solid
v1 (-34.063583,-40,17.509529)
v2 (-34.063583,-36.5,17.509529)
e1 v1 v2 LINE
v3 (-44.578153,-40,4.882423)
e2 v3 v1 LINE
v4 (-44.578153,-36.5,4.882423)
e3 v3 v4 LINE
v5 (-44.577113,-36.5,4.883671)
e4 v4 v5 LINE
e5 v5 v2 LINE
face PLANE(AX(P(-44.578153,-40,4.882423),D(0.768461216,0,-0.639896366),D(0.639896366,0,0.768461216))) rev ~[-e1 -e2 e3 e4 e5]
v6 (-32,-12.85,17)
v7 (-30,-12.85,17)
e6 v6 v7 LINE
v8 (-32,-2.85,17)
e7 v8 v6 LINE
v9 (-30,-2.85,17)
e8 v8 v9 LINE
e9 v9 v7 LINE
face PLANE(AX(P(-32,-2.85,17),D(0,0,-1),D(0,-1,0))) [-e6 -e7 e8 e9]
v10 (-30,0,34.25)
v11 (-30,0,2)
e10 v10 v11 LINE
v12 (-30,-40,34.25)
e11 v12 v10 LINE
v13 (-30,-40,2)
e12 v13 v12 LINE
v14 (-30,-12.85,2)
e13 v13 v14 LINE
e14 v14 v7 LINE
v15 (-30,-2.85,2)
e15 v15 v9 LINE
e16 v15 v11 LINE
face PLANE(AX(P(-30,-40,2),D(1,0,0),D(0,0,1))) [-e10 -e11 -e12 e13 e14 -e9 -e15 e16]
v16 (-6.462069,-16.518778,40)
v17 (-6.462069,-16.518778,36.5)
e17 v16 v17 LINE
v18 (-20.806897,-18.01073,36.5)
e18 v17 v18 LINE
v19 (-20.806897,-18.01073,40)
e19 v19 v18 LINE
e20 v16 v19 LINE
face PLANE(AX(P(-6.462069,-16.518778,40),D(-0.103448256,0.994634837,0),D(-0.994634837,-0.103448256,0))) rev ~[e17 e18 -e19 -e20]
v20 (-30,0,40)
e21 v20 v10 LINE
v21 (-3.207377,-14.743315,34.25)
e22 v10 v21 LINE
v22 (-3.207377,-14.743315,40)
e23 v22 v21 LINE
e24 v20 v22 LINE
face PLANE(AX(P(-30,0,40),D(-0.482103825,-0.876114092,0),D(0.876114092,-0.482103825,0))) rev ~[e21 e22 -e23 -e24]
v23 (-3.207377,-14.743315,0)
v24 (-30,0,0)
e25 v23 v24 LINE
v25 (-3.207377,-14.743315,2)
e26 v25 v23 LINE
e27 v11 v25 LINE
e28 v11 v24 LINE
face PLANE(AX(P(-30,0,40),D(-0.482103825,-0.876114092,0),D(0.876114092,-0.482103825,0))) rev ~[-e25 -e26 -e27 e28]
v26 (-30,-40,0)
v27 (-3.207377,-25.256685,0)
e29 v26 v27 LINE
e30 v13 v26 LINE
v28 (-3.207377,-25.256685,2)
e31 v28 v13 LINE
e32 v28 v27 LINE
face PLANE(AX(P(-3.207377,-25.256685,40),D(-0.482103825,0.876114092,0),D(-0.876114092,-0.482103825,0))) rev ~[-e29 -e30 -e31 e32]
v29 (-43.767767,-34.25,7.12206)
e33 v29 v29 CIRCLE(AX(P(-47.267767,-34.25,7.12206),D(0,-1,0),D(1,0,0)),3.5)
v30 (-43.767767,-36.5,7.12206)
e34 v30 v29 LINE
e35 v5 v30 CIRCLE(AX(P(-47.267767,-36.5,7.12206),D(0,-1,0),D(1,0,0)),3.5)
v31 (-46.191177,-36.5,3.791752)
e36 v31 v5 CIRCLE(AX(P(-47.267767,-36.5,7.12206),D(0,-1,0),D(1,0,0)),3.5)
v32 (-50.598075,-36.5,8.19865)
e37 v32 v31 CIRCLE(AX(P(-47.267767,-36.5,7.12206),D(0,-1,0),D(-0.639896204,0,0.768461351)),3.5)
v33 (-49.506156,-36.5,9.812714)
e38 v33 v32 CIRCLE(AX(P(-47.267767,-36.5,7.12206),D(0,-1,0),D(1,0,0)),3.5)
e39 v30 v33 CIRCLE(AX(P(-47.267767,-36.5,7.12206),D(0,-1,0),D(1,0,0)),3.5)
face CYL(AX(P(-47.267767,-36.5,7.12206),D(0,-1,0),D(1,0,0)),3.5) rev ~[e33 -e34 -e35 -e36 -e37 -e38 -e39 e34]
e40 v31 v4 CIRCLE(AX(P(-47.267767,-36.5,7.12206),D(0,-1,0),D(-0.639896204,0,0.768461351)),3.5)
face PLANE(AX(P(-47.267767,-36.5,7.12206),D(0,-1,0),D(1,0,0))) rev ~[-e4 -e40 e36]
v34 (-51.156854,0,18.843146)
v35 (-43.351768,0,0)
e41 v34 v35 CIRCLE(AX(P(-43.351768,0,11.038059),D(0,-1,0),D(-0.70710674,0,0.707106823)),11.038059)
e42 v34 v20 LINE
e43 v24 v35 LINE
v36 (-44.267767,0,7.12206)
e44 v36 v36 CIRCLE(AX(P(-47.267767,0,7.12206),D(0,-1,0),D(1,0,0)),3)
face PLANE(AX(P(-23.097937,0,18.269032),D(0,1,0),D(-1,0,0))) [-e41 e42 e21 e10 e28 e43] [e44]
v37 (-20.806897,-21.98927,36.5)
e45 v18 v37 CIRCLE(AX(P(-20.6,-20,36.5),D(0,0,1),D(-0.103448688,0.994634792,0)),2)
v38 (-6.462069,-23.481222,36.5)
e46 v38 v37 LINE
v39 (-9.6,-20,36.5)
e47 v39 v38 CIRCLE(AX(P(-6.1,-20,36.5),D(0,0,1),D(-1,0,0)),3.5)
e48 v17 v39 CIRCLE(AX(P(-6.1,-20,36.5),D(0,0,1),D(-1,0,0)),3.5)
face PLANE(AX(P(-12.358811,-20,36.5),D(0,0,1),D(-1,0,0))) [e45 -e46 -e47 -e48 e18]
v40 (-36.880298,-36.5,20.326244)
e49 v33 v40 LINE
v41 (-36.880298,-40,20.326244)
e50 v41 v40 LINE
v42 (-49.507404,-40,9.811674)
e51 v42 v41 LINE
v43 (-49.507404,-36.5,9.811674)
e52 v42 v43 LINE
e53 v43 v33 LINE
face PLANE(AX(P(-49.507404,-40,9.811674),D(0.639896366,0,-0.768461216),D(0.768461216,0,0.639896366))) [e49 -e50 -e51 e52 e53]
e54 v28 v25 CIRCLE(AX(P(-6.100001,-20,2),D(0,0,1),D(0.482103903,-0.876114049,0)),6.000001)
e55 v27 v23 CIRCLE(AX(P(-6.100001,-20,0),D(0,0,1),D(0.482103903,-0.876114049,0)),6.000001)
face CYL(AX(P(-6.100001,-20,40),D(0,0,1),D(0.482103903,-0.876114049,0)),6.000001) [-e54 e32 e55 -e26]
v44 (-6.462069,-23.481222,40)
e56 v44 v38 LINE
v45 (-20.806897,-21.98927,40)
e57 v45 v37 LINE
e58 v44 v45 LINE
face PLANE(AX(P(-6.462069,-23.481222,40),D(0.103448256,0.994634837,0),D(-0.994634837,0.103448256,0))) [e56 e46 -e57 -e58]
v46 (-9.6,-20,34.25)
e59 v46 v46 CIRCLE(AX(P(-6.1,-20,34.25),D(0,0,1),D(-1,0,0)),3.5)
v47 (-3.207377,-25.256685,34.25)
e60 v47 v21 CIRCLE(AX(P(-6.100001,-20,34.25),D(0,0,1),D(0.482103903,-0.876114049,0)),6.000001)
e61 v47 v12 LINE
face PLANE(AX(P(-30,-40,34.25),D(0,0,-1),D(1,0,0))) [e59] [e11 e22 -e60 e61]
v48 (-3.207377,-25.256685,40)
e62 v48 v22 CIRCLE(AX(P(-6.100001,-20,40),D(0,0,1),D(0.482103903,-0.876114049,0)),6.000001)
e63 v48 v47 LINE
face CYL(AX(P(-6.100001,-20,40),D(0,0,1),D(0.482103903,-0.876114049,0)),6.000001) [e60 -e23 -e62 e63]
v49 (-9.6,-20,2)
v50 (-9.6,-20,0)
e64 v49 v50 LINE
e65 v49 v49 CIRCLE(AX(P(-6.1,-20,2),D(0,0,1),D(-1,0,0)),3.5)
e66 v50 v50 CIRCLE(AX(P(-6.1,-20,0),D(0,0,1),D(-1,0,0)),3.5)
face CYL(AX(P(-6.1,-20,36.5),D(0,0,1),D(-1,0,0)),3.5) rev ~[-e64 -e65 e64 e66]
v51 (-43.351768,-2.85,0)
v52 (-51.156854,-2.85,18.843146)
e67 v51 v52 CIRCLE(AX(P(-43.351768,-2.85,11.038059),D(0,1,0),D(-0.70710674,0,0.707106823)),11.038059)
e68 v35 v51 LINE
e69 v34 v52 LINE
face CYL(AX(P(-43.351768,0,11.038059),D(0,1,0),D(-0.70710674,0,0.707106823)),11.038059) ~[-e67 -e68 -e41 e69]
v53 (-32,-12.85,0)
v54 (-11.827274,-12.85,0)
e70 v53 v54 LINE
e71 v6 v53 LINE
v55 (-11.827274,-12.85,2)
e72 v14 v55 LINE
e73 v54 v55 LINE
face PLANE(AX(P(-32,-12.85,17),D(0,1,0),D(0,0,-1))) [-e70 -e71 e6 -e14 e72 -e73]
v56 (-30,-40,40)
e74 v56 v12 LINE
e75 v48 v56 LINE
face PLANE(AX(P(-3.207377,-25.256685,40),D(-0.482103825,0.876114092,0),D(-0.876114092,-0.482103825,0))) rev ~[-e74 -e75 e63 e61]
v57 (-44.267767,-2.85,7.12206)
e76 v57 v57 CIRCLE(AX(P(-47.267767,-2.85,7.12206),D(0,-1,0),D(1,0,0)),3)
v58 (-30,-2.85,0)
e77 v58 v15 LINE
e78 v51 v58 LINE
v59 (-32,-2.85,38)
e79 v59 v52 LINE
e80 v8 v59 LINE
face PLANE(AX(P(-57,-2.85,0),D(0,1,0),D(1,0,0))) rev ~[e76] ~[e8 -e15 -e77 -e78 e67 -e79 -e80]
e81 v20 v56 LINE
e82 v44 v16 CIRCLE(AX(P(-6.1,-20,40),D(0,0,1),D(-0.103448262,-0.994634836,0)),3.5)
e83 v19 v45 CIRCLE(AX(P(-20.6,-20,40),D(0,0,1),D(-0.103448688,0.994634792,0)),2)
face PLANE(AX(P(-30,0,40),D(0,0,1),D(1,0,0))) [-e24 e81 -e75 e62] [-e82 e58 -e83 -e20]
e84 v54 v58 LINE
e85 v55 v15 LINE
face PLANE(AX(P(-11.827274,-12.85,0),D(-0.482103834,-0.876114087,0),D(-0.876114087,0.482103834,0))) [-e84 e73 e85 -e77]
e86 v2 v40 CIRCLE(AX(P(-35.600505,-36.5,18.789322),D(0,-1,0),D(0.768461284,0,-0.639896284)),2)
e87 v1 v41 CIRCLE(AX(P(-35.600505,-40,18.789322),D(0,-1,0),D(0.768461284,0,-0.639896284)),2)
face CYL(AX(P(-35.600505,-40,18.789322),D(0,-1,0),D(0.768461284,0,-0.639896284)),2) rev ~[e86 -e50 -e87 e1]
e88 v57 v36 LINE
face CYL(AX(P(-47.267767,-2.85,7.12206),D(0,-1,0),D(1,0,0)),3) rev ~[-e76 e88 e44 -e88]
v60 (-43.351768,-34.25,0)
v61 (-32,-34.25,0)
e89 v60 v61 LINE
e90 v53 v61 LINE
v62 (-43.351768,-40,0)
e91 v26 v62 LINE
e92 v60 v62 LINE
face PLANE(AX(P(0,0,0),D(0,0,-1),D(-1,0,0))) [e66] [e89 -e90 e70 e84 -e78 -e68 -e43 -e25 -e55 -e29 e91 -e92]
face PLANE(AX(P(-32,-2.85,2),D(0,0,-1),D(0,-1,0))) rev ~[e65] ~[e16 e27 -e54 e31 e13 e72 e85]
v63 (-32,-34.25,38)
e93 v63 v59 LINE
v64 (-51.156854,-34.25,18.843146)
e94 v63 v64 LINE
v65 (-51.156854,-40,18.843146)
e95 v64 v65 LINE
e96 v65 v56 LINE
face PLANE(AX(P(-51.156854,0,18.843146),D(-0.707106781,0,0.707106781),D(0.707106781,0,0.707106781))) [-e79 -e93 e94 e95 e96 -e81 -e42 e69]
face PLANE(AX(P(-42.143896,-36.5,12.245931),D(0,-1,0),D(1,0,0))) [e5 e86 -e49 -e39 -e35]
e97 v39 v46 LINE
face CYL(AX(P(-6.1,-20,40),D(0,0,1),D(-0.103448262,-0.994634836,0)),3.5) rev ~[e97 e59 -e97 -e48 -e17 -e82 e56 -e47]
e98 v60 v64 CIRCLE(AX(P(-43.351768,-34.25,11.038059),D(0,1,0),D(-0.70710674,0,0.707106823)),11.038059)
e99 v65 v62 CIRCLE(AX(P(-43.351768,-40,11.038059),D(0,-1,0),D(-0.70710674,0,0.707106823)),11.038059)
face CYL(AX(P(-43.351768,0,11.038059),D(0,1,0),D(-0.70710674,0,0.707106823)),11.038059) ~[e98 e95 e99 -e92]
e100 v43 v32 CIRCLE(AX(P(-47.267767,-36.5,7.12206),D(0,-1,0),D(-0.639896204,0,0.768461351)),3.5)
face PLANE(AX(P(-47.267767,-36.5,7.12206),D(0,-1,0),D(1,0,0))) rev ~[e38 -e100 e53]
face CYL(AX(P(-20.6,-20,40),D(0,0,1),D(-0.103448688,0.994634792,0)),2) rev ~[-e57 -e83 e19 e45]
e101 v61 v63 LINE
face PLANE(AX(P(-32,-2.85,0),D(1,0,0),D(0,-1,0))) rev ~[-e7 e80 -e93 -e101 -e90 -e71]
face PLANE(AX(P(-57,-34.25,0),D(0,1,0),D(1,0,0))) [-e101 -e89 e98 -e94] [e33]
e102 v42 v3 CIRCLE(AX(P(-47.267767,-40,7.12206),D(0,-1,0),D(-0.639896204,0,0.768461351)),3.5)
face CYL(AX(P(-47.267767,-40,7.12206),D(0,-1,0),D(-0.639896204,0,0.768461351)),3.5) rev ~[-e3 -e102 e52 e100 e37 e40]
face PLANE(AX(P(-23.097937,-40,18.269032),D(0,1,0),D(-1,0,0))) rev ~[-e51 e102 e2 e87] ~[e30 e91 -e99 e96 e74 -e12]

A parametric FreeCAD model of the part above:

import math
import FreeCAD as App
import Part
import Sketcher

V = App.Vector
Q = App.Units.Quantity


def add_polygon(sketch, points):
    """Adds a closed chain of lines whose ends are joined by coincident constraints."""
    first, n = sketch.GeometryCount, len(points)
    for a, b in zip(points, points[1:] + points[:1]):
        sketch.addGeometry(Part.LineSegment(App.Vector(*a, 0), App.Vector(*b, 0)), False)
    for i in range(n):
        sketch.addConstraint(Sketcher.Constraint("Coincident", first + i, 2, first + (i + 1) % n, 1))

doc = App.newDocument("Part")
body = doc.addObject("PartDesign::Body", "Body")

sketch1 = body.newObject("Sketcher::SketchObject", "Sketch")
sketch1.AttachmentSupport = (doc.getObject("XZ_Plane"), [""])
sketch1.MapMode = "FlatFace"
sketch1.addGeometry([
    Part.LineSegment(V(-30, 40, 0), V(-51, 19, 0)),
    Part.ArcOfCircle(Part.Circle(V(-43, 11, 0), V(0, 0, 1), 11), math.radians(135), math.radians(270)),
    Part.LineSegment(V(-43, 0, 0), V(0, 0, 0)),
    Part.LineSegment(V(0, 0, 0), V(0, 40, 0)),
    Part.LineSegment(V(0, 40, 0), V(-30, 40, 0)),
], False)
sketch1.addConstraint([
    Sketcher.Constraint("Tangent", 0, 2, 1, 1),
    Sketcher.Constraint("Tangent", 1, 2, 2, 1),
    Sketcher.Constraint("Coincident", 2, 2, 3, 1),
    Sketcher.Constraint("Coincident", 3, 2, 4, 1),
    Sketcher.Constraint("Coincident", 4, 2, 0, 1),
    Sketcher.Constraint("Horizontal", 2),
    Sketcher.Constraint("Vertical", 3),
    Sketcher.Constraint("Horizontal", 4),
    Sketcher.Constraint("Coincident", 2, 2, -1, 1),
    Sketcher.Constraint("DistanceX", 4, 2, 4, 1, 30.0),
    Sketcher.Constraint("DistanceY", 3, 1, 3, 2, 40.0),
    Sketcher.Constraint("Angle", 0, Q("-135 deg")),
    Sketcher.Constraint("Radius", 1, 11.038059),
])
pad1 = body.newObject("PartDesign::Pad", "Pad")
pad1.Profile = sketch1
pad1.Length = 40

sketch2 = body.newObject("Sketcher::SketchObject", "Sketch001")
sketch2.AttachmentSupport = (doc.getObject("XY_Plane"), [""])
sketch2.MapMode = "FlatFace"
sketch2.AttachmentOffset = App.Placement(V(0, 0, 40), App.Rotation())
sketch2.addGeometry([
    Part.LineSegment(V(-30, -40, 0), V(0, -40, 0)),
    Part.LineSegment(V(0, -40, 0), V(0, 0, 0)),
    Part.LineSegment(V(0, 0, 0), V(-30, 0, 0)),
    Part.LineSegment(V(-30, 0, 0), V(-3, -15, 0)),
    Part.ArcOfCircle(Part.Circle(V(-6, -20, 0), V(0, 0, 1), 6), math.radians(-61), math.radians(61)),
    Part.LineSegment(V(-3, -25, 0), V(-30, -40, 0)),
], False)
sketch2.addConstraint([
    Sketcher.Constraint("Coincident", 0, 2, 1, 1),
    Sketcher.Constraint("Coincident", 1, 2, 2, 1),
    Sketcher.Constraint("Coincident", 2, 2, 3, 1),
    Sketcher.Constraint("Tangent", 3, 2, 4, 2),
    Sketcher.Constraint("Tangent", 4, 1, 5, 1),
    Sketcher.Constraint("Coincident", 5, 2, 0, 1),
    Sketcher.Constraint("Horizontal", 0),
    Sketcher.Constraint("Vertical", 1),
    Sketcher.Constraint("Horizontal", 2),
    Sketcher.Constraint("Coincident", 1, 2, -1, 1),
    Sketcher.Constraint("Vertical", 3, 2, 4, 1),
    Sketcher.Constraint("Vertical", 2, 2, 5, 2),
    Sketcher.Constraint("Radius", 4, 6.000001),
    Sketcher.Constraint("DistanceX", 0, 1, 0, 2, 30.0),
    Sketcher.Constraint("DistanceY", 1, 1, 1, 2, 40.0),
    Sketcher.Constraint("DistanceX", 4, 3, -1, 1, 6.100001),
])
pocket1 = body.newObject("PartDesign::Pocket", "Pocket")
pocket1.Profile = sketch2
pocket1.Type = "ThroughAll"

sketch3 = body.newObject("Sketcher::SketchObject", "Sketch002")
sketch3.AttachmentSupport = (doc.getObject("XZ_Plane"), [""])
sketch3.MapMode = "FlatFace"
sketch3.AttachmentOffset = App.Placement(V(0, 0, 40), App.Rotation())
add_polygon(sketch3, [(-30, 34), (-30, 2), (0, 2), (0, 34)])
sketch3.addConstraint([
    Sketcher.Constraint("Vertical", 0),
    Sketcher.Constraint("Horizontal", 1),
    Sketcher.Constraint("Vertical", 2),
    Sketcher.Constraint("Horizontal", 3),
    Sketcher.Constraint("PointOnObject", 1, 2, -2),
    Sketcher.Constraint("DistanceX", 1, 1, 1, 2, 30.0),
    Sketcher.Constraint("DistanceY", -1, 1, 0, 2, 2.0),
    Sketcher.Constraint("DistanceY", 0, 2, 0, 1, 32.25),
])
pocket2 = body.newObject("PartDesign::Pocket", "Pocket001")
pocket2.Profile = sketch3
pocket2.Type = "ThroughAll"

sketch4 = body.newObject("Sketcher::SketchObject", "Sketch003")
sketch4.AttachmentSupport = (doc.getObject("XY_Plane"), [""])
sketch4.MapMode = "FlatFace"
sketch4.AttachmentOffset = App.Placement(V(0, 0, 40), App.Rotation())
sketch4.addGeometry([
    Part.ArcOfCircle(Part.Circle(V(-6.1, -20, 0), V(0, 0, 1), 3.5), math.radians(-96), math.radians(96)),
    Part.LineSegment(V(-6.5, -16.5, 0), V(-20.8, -18, 0)),
    Part.ArcOfCircle(Part.Circle(V(-20.6, -20, 0), V(0, 0, 1), 2), math.radians(96), math.radians(264)),
    Part.LineSegment(V(-20.8, -22, 0), V(-6.5, -23.5, 0)),
], False)
sketch4.addConstraint([
    Sketcher.Constraint("Tangent", 0, 2, 1, 1),
    Sketcher.Constraint("Tangent", 1, 2, 2, 1),
    Sketcher.Constraint("Tangent", 2, 2, 3, 1),
    Sketcher.Constraint("Tangent", 3, 2, 0, 1),
    Sketcher.Constraint("Horizontal", 0, 3, 2, 3),
    Sketcher.Constraint("Radius", 2, 2.0),
    Sketcher.Constraint("Radius", 0, 3.5),
    Sketcher.Constraint("DistanceY", 0, 3, -1, 1, 20.0),
    Sketcher.Constraint("DistanceX", 0, 3, -1, 1, 6.1),
    Sketcher.Constraint("DistanceX", 2, 3, -1, 1, 20.6),
])
pocket3 = body.newObject("PartDesign::Pocket", "Pocket002")
pocket3.Profile = sketch4
pocket3.Length = 3.5

sketch5 = body.newObject("Sketcher::SketchObject", "Sketch004")
sketch5.AttachmentSupport = (doc.getObject("XY_Plane"), [""])
sketch5.MapMode = "FlatFace"
sketch5.AttachmentOffset = App.Placement(V(0, 0, 36.5), App.Rotation())
sketch5.addGeometry(Part.Circle(V(-6.1, -20, 0), V(0, 0, 1), 3.5), False)
sketch5.addConstraint([
    Sketcher.Constraint("Diameter", 0, 7.0),
    Sketcher.Constraint("DistanceY", 0, 3, -1, 1, 20.0),
    Sketcher.Constraint("DistanceX", 0, 3, -1, 1, 6.1),
])
pocket4 = body.newObject("PartDesign::Pocket", "Pocket003")
pocket4.Profile = sketch5
pocket4.Type = "ThroughAll"

sketch6 = body.newObject("Sketcher::SketchObject", "Sketch005")
sketch6.AttachmentSupport = (doc.getObject("XY_Plane"), [""])
sketch6.MapMode = "FlatFace"
add_polygon(sketch6, [(-57, -34), (-57, -3), (-32, -3), (-32, -34)])
sketch6.addConstraint([
    Sketcher.Constraint("Vertical", 0),
    Sketcher.Constraint("Horizontal", 1),
    Sketcher.Constraint("Vertical", 2),
    Sketcher.Constraint("Horizontal", 3),
    Sketcher.Constraint("DistanceX", 1, 1, 1, 2, 25.0),
    Sketcher.Constraint("DistanceY", 0, 1, 0, 2, 31.4),
    Sketcher.Constraint("DistanceX", 0, 2, -1, 1, 57.0),
    Sketcher.Constraint("DistanceY", 0, 2, -1, 1, 2.85),
])
pocket5 = body.newObject("PartDesign::Pocket", "Pocket004")
pocket5.Profile = sketch6
pocket5.Type = "ThroughAll"
pocket5.Reversed = True

sketch7 = body.newObject("Sketcher::SketchObject", "Sketch006")
sketch7.AttachmentSupport = (doc.getObject("XZ_Plane"), [""])
sketch7.MapMode = "FlatFace"
sketch7.AttachmentOffset = App.Placement(V(0, 0, 40), App.Rotation())
sketch7.addGeometry([
    Part.ArcOfCircle(Part.Circle(V(-47.3, 7.1, 0), V(0, 0, 1), 3.5), math.radians(130), math.radians(320)),
    Part.LineSegment(V(-44.6, 4.9, 0), V(-34.1, 17.5, 0)),
    Part.ArcOfCircle(Part.Circle(V(-35.6, 18.8, 0), V(0, 0, 1), 2), math.radians(-40), math.radians(130)),
    Part.LineSegment(V(-36.9, 20.3, 0), V(-49.5, 9.8, 0)),
], False)
sketch7.addConstraint([
    Sketcher.Constraint("Tangent", 0, 2, 1, 1),
    Sketcher.Constraint("Tangent", 1, 2, 2, 1),
    Sketcher.Constraint("Tangent", 2, 2, 3, 1),
    Sketcher.Constraint("Tangent", 3, 2, 0, 1),
    Sketcher.Constraint("Radius", 2, 2.0),
    Sketcher.Constraint("Radius", 0, 3.5),
    Sketcher.Constraint("DistanceX", 2, 2, -1, 1, 36.880298),
    Sketcher.Constraint("DistanceY", 0, 2, 2, 3, 13.906899),
    Sketcher.Constraint("DistanceX", 3, 2, 2, 3, 13.906899),
    Sketcher.Constraint("DistanceY", -1, 1, 0, 3, 7.12206),
])
pocket6 = body.newObject("PartDesign::Pocket", "Pocket005")
pocket6.Profile = sketch7
pocket6.Length = 3.5

sketch8 = body.newObject("Sketcher::SketchObject", "Sketch007")
sketch8.AttachmentSupport = (doc.getObject("XZ_Plane"), [""])
sketch8.MapMode = "FlatFace"
sketch8.AttachmentOffset = App.Placement(V(0, 0, 36.5), App.Rotation())
sketch8.addGeometry(Part.Circle(V(-47.3, 7.1, 0), V(0, 0, 1), 3.5), False)
sketch8.addConstraint([
    Sketcher.Constraint("Diameter", 0, 7.0),
    Sketcher.Constraint("DistanceY", -1, 1, 0, 3, 7.12206),
    Sketcher.Constraint("DistanceX", 0, 3, -1, 1, 47.267767),
])
pocket7 = body.newObject("PartDesign::Pocket", "Pocket006")
pocket7.Profile = sketch8
pocket7.Length = 5

sketch9 = body.newObject("Sketcher::SketchObject", "Sketch008")
sketch9.AttachmentSupport = (doc.getObject("XZ_Plane"), [""])
sketch9.MapMode = "FlatFace"
sketch9.AttachmentOffset = App.Placement(V(0, 0, 2.85), App.Rotation())
sketch9.addGeometry(Part.Circle(V(-47.3, 7.1, 0), V(0, 0, 1), 3), False)
sketch9.addConstraint([
    Sketcher.Constraint("Diameter", 0, 6.0),
    Sketcher.Constraint("DistanceY", -1, 1, 0, 3, 7.12206),
    Sketcher.Constraint("DistanceX", 0, 3, -1, 1, 47.267767),
])
pocket8 = body.newObject("PartDesign::Pocket", "Pocket007")
pocket8.Profile = sketch9
pocket8.Type = "ThroughAll"

sketch10 = body.newObject("Sketcher::SketchObject", "Sketch009")
sketch10.AttachmentSupport = (doc.getObject("YZ_Plane"), [""])
sketch10.MapMode = "FlatFace"
sketch10.AttachmentOffset = App.Placement(V(0, 0, -32), App.Rotation())
add_polygon(sketch10, [(-13, 17), (-3, 17), (-3, 2), (-13, 2)])
sketch10.addConstraint([
    Sketcher.Constraint("Horizontal", 0),
    Sketcher.Constraint("Vertical", 1),
    Sketcher.Constraint("Horizontal", 2),
    Sketcher.Constraint("Vertical", 3),
    Sketcher.Constraint("DistanceX", 0, 1, 0, 2, 10.0),
    Sketcher.Constraint("DistanceY", 1, 2, 1, 1, 15.0),
    Sketcher.Constraint("DistanceY", -1, 1, 0, 2, 17.0),
    Sketcher.Constraint("DistanceX", 0, 2, -1, 1, 2.85),
])
pocket9 = body.newObject("PartDesign::Pocket", "Pocket008")
pocket9.Profile = sketch10
pocket9.Length = 2
pocket9.Reversed = True

sketch11 = body.newObject("Sketcher::SketchObject", "Sketch010")
sketch11.AttachmentSupport = (doc.getObject("XY_Plane"), [""])
sketch11.MapMode = "FlatFace"
add_polygon(sketch11, [(-11.8, -12.8), (-32, -12.8), (-32, -2.9), (-30, -2.9)])
sketch11.addConstraint([
    Sketcher.Constraint("Horizontal", 0),
    Sketcher.Constraint("Vertical", 1),
    Sketcher.Constraint("Horizontal", 2),
    Sketcher.Constraint("DistanceX", 2, 1, 2, 2, 2.0),
    Sketcher.Constraint("DistanceY", 1, 1, 1, 2, 10.0),
    Sketcher.Constraint("DistanceX", 0, 2, -1, 1, 32.0),
    Sketcher.Constraint("DistanceY", 0, 2, -1, 1, 12.85),
    Sketcher.Constraint("Distance", 3, 20.74242),
])
pocket10 = body.newObject("PartDesign::Pocket", "Pocket009")
pocket10.Profile = sketch11
pocket10.Length = 3
pocket10.Reversed = True

doc.recompute()
